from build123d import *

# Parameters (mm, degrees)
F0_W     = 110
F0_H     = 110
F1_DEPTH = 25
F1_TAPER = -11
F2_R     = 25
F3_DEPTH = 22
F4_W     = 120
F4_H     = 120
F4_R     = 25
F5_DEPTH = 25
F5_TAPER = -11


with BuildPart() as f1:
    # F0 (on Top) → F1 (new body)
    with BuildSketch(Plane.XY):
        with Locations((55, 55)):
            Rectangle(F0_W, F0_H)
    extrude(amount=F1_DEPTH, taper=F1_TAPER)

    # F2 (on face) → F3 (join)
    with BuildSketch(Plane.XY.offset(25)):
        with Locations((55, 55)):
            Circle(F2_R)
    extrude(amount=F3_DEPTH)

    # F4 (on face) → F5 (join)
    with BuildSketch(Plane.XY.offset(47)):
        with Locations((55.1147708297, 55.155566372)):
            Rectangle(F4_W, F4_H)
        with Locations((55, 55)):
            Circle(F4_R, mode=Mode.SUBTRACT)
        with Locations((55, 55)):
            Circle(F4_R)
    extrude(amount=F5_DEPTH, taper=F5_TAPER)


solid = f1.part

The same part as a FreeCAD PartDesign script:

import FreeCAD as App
import Part
import Sketcher
from FreeCAD import Vector

doc = App.newDocument("Part")
body = doc.addObject("PartDesign::Body", "Body")

# Sketch on XY plane
sketch1 = body.newObject("Sketcher::SketchObject", "Sketch")
sketch1.AttachmentSupport = (doc.getObject("XY_Plane"), [""])
sketch1.MapMode = "FlatFace"
sketch1.addGeometry([
    Part.LineSegment(Vector(0, 110, 0), Vector(0, 0, 0)),
    Part.LineSegment(Vector(0, 0, 0), Vector(110, 0, 0)),
    Part.LineSegment(Vector(110, 0, 0), Vector(110, 110, 0)),
    Part.LineSegment(Vector(110, 110, 0), Vector(0, 110, 0)),
], False)
sketch1.addConstraint([
    Sketcher.Constraint("Coincident", 0, 2, 1, 1),
    Sketcher.Constraint("Coincident", 1, 2, 2, 1),
    Sketcher.Constraint("Coincident", 2, 2, 3, 1),
    Sketcher.Constraint("Coincident", 3, 2, 0, 1),
    Sketcher.Constraint("Vertical", 0),
    Sketcher.Constraint("Horizontal", 1),
    Sketcher.Constraint("Vertical", 2),
    Sketcher.Constraint("Horizontal", 3),
    Sketcher.Constraint("Coincident", 0, 2, -1, 1),
    Sketcher.Constraint("Equal", 3, 0),
    Sketcher.Constraint("DistanceX", 1, 1, 1, 2, 110.0),
])
pad1 = body.newObject("PartDesign::Pad", "Pad")
pad1.Profile = sketch1
pad1.Length = 25
pad1.TaperAngle = 11

# Sketch on XY plane
sketch2 = body.newObject("Sketcher::SketchObject", "Sketch001")
sketch2.AttachmentSupport = (doc.getObject("XY_Plane"), [""])
sketch2.MapMode = "FlatFace"
sketch2.AttachmentOffset = App.Placement(Vector(0, 0, 25), App.Rotation())
sketch2.addGeometry(Part.Circle(Vector(55, 55, 0), Vector(0, 0, 1), 25), False)
sketch2.addConstraint([
    Sketcher.Constraint("Diameter", 0, 50.0),
    Sketcher.Constraint("DistanceX", -1, 1, 0, 3, 55.0),
    Sketcher.Constraint("DistanceY", -1, 1, 0, 3, 55.0),
])
pad2 = body.newObject("PartDesign::Pad", "Pad001")
pad2.Profile = sketch2
pad2.Length = 22

# Sketch on XY plane
sketch3 = body.newObject("Sketcher::SketchObject", "Sketch002")
sketch3.AttachmentSupport = (doc.getObject("XY_Plane"), [""])
sketch3.MapMode = "FlatFace"
sketch3.AttachmentOffset = App.Placement(Vector(0, 0, 47), App.Rotation())
sketch3.addGeometry([
    Part.LineSegment(Vector(-5, 115, 0), Vector(-5, -5, 0)),
    Part.LineSegment(Vector(-5, -5, 0), Vector(115, -5, 0)),
    Part.LineSegment(Vector(115, -5, 0), Vector(115, 115, 0)),
    Part.LineSegment(Vector(115, 115, 0), Vector(-5, 115, 0)),
], False)
sketch3.addConstraint([
    Sketcher.Constraint("Coincident", 0, 2, 1, 1),
    Sketcher.Constraint("Coincident", 1, 2, 2, 1),
    Sketcher.Constraint("Coincident", 2, 2, 3, 1),
    Sketcher.Constraint("Coincident", 3, 2, 0, 1),
    Sketcher.Constraint("Vertical", 0),
    Sketcher.Constraint("Horizontal", 1),
    Sketcher.Constraint("Vertical", 2),
    Sketcher.Constraint("Horizontal", 3),
    Sketcher.Constraint("Equal", 3, 0),
    Sketcher.Constraint("DistanceX", 1, 1, 1, 2, 120.0),
    Sketcher.Constraint("DistanceX", 0, 2, -1, 1, 4.885229),
    Sketcher.Constraint("DistanceY", 0, 2, -1, 1, 4.844434),
])
pad3 = body.newObject("PartDesign::Pad", "Pad002")
pad3.Profile = sketch3
pad3.Length = 25
pad3.TaperAngle = 11

doc.recompute()
